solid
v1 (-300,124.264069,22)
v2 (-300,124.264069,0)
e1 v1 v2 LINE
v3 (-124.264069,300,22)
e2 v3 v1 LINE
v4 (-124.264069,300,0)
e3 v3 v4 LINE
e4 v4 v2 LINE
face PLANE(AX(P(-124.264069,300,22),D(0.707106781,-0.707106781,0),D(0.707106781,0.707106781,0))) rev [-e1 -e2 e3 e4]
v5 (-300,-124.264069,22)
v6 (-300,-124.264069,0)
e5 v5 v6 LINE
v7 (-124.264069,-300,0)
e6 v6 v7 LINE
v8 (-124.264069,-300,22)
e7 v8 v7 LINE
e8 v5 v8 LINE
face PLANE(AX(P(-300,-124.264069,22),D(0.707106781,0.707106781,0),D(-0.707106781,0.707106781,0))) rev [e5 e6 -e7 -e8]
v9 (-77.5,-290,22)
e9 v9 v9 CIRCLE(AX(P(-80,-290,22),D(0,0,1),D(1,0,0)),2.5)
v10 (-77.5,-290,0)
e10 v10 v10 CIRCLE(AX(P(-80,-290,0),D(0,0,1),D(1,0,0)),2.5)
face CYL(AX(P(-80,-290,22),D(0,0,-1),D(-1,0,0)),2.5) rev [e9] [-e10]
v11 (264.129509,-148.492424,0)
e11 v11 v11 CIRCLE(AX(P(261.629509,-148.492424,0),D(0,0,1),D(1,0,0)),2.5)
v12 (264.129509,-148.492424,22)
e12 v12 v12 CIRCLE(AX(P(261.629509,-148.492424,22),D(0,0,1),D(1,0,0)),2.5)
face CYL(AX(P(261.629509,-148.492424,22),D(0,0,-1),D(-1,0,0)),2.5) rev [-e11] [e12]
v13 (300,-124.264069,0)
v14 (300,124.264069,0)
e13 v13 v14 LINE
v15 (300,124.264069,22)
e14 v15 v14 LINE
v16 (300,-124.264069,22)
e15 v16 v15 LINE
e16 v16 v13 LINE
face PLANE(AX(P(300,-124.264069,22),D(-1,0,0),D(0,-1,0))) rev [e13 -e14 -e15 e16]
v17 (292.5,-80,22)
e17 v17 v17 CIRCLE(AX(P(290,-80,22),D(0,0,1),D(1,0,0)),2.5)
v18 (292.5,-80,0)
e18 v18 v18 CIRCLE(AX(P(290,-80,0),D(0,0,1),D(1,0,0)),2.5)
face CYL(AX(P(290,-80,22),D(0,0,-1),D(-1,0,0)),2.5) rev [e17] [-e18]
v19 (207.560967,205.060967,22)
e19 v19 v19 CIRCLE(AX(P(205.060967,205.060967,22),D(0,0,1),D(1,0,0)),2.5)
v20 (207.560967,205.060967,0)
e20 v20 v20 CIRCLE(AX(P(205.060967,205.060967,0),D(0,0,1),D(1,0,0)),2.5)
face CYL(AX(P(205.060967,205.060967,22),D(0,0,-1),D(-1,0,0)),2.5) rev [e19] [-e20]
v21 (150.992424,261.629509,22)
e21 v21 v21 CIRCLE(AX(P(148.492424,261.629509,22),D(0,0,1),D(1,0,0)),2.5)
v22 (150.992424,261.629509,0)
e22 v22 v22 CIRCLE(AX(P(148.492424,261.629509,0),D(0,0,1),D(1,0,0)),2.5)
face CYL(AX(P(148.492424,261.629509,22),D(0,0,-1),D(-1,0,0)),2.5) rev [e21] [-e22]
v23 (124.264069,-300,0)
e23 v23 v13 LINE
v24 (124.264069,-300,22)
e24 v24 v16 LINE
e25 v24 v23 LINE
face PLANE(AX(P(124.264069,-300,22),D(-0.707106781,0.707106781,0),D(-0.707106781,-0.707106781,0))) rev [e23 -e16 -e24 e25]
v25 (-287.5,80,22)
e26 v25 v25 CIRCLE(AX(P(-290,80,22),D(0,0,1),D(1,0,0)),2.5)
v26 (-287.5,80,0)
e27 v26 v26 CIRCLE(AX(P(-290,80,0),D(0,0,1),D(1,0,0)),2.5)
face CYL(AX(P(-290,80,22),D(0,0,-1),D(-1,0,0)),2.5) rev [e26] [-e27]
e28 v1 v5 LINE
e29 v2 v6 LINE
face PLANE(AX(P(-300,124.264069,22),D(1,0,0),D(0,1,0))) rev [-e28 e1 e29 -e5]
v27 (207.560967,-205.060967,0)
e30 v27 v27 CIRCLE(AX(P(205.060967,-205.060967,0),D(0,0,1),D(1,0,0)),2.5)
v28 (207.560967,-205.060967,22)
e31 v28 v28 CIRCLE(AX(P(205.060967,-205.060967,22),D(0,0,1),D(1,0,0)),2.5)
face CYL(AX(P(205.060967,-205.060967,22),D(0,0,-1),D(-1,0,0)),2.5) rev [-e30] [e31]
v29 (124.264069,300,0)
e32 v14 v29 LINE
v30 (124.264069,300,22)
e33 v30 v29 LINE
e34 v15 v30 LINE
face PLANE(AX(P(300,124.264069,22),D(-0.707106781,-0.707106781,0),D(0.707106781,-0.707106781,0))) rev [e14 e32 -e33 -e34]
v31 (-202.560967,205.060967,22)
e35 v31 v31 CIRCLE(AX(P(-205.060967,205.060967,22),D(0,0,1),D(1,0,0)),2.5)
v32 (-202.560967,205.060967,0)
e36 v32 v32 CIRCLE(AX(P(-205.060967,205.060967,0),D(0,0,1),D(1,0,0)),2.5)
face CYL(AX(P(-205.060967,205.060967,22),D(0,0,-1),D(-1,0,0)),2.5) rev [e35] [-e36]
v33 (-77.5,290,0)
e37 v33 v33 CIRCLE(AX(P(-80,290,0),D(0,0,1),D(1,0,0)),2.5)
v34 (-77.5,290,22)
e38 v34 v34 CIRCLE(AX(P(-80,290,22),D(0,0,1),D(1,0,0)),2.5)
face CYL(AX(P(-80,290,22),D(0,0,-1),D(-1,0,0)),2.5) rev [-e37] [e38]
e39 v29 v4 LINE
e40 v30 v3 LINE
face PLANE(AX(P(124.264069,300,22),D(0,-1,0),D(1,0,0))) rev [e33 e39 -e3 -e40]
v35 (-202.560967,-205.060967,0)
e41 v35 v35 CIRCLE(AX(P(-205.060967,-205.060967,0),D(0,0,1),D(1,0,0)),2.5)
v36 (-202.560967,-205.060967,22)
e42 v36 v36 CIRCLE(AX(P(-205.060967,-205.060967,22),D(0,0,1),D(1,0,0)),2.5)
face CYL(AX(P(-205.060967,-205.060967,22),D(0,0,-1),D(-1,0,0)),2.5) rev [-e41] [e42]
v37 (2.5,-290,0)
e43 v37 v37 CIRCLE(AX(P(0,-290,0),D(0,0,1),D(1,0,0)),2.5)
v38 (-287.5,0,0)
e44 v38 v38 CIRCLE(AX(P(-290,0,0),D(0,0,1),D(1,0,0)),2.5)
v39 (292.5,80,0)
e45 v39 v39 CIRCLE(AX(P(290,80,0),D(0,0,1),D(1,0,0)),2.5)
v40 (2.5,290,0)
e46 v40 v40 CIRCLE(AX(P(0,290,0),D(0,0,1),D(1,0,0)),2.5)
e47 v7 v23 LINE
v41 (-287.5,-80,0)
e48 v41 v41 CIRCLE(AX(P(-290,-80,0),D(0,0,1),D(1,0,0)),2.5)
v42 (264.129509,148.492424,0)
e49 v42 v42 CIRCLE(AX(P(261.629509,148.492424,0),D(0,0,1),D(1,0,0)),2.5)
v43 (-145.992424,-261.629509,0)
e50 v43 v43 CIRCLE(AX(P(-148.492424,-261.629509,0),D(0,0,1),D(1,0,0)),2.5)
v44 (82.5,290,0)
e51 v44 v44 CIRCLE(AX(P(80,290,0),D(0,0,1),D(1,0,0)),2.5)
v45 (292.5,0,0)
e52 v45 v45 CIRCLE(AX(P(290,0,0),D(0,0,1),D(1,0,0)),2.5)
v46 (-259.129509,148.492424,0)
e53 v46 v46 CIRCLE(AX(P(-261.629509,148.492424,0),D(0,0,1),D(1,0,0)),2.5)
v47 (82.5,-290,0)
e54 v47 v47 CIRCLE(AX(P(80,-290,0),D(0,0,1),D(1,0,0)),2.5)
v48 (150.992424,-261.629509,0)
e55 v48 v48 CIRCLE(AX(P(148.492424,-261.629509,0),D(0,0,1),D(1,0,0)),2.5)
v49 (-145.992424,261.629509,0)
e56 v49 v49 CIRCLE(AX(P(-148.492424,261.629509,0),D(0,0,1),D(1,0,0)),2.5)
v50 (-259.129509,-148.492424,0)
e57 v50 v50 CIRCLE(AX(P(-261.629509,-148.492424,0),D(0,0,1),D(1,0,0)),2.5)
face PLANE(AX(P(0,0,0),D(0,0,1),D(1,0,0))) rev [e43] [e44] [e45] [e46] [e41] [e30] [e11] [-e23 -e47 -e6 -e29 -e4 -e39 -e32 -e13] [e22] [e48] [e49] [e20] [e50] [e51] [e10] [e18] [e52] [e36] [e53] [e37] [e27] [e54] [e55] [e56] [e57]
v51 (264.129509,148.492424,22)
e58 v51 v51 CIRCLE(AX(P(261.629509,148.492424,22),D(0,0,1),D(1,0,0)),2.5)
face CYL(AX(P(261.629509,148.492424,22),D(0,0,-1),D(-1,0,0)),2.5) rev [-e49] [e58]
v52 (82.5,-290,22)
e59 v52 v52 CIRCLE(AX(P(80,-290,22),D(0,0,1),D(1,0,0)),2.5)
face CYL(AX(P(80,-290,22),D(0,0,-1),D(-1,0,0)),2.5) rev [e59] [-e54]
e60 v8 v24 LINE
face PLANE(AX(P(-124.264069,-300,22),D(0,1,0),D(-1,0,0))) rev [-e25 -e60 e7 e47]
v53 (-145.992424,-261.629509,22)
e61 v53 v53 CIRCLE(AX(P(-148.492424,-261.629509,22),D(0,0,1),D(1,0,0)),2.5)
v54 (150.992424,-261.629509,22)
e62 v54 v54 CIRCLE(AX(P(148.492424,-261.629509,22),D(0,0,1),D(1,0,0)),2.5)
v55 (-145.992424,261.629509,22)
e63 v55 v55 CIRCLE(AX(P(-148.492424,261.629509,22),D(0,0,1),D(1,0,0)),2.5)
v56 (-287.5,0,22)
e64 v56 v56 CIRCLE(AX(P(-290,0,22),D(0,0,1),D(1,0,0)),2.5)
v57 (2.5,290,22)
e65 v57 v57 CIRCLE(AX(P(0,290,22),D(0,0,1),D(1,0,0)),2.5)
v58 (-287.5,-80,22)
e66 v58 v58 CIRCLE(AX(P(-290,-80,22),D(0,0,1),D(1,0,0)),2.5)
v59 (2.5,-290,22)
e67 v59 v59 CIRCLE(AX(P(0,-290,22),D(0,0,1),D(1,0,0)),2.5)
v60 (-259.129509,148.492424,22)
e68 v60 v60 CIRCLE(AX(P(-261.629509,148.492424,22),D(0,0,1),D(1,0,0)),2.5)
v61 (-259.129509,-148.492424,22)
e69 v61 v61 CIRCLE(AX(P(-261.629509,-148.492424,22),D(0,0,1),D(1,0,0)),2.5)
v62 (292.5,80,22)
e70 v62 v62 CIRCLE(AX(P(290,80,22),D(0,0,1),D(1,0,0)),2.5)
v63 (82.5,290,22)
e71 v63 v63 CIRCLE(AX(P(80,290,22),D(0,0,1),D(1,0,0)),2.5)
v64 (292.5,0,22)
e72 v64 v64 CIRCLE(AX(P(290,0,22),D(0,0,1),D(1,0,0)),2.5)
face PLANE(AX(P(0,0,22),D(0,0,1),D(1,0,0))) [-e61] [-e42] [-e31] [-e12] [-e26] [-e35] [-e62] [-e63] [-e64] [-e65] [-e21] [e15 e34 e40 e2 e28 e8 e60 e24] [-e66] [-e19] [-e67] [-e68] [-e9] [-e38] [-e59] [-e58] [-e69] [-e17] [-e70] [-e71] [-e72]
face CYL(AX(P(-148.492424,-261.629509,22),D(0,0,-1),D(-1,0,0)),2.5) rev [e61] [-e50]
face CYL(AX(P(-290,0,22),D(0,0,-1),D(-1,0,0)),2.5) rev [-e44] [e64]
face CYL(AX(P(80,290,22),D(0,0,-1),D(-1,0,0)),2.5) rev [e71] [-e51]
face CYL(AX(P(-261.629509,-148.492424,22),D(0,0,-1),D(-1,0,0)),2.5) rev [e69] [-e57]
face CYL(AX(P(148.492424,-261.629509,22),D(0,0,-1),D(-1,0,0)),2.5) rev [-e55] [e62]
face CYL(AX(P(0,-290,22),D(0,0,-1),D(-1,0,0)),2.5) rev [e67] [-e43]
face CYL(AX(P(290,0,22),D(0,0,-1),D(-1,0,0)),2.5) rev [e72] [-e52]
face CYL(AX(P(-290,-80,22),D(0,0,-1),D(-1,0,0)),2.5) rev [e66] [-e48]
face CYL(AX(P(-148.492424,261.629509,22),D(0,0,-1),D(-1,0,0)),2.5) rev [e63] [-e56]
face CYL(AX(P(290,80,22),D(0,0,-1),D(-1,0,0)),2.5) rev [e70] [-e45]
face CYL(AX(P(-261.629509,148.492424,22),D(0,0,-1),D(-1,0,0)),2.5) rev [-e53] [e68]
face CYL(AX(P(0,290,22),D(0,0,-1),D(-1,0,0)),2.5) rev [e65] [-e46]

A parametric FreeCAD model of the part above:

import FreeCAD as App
import Part
import Sketcher
from FreeCAD import Vector
Q = App.Units.Quantity

doc = App.newDocument("Part")
body = doc.addObject("PartDesign::Body", "Body")

# Sketch on XY plane
sketch1 = body.newObject("Sketcher::SketchObject", "Sketch")
sketch1.AttachmentSupport = (doc.getObject("XY_Plane"), [""])
sketch1.MapMode = "FlatFace"
sketch1.addGeometry(Part.LineSegment(Vector(124.3, 300, 0), Vector(-124.3, 300, 0)), False)
sketch1.addGeometry(Part.LineSegment(Vector(-124.3, 300, 0), Vector(-300, 124.3, 0)), False)
sketch1.addGeometry(Part.LineSegment(Vector(-300, 124.3, 0), Vector(-300, -124.3, 0)), False)
sketch1.addGeometry(Part.LineSegment(Vector(-300, -124.3, 0), Vector(-124.3, -300, 0)), False)
sketch1.addGeometry(Part.LineSegment(Vector(-124.3, -300, 0), Vector(124.3, -300, 0)), False)
sketch1.addGeometry(Part.LineSegment(Vector(124.3, -300, 0), Vector(300, -124.3, 0)), False)
sketch1.addGeometry(Part.LineSegment(Vector(300, -124.3, 0), Vector(300, 124.3, 0)), False)
sketch1.addGeometry(Part.LineSegment(Vector(300, 124.3, 0), Vector(124.3, 300, 0)), False)
sketch1.addGeometry(Part.Circle(Vector(-148.5, -261.6, 0), Vector(0, 0, 1), 2.5), False)
sketch1.addGeometry(Part.Circle(Vector(-261.6, -148.5, 0), Vector(0, 0, 1), 2.5), False)
sketch1.addGeometry(Part.Circle(Vector(-205.1, -205.1, 0), Vector(0, 0, 1), 2.5), False)
sketch1.addGeometry(Part.Circle(Vector(-80, -290, 0), Vector(0, 0, 1), 2.5), False)
sketch1.addGeometry(Part.Circle(Vector(-290, -80, 0), Vector(0, 0, 1), 2.5), False)
sketch1.addGeometry(Part.Circle(Vector(0, -290, 0), Vector(0, 0, 1), 2.5), False)
sketch1.addGeometry(Part.Circle(Vector(80, -290, 0), Vector(0, 0, 1), 2.5), False)
sketch1.addGeometry(Part.Circle(Vector(148.5, -261.6, 0), Vector(0, 0, 1), 2.5), False)
sketch1.addGeometry(Part.Circle(Vector(205.1, -205.1, 0), Vector(0, 0, 1), 2.5), False)
sketch1.addGeometry(Part.Circle(Vector(261.6, -148.5, 0), Vector(0, 0, 1), 2.5), False)
sketch1.addGeometry(Part.Circle(Vector(290, -80, 0), Vector(0, 0, 1), 2.5), False)
sketch1.addGeometry(Part.Circle(Vector(-290, 0, 0), Vector(0, 0, 1), 2.5), False)
sketch1.addGeometry(Part.Circle(Vector(-290, 80, 0), Vector(0, 0, 1), 2.5), False)
sketch1.addGeometry(Part.Circle(Vector(-261.6, 148.5, 0), Vector(0, 0, 1), 2.5), False)
sketch1.addGeometry(Part.Circle(Vector(-205.1, 205.1, 0), Vector(0, 0, 1), 2.5), False)
sketch1.addGeometry(Part.Circle(Vector(-148.5, 261.6, 0), Vector(0, 0, 1), 2.5), False)
sketch1.addGeometry(Part.Circle(Vector(-80, 290, 0), Vector(0, 0, 1), 2.5), False)
sketch1.addGeometry(Part.Circle(Vector(290, 0, 0), Vector(0, 0, 1), 2.5), False)
sketch1.addGeometry(Part.Circle(Vector(290, 80, 0), Vector(0, 0, 1), 2.5), False)
sketch1.addGeometry(Part.Circle(Vector(0, 290, 0), Vector(0, 0, 1), 2.5), False)
sketch1.addGeometry(Part.Circle(Vector(80, 290, 0), Vector(0, 0, 1), 2.5), False)
sketch1.addGeometry(Part.Circle(Vector(205.1, 205.1, 0), Vector(0, 0, 1), 2.5), False)
sketch1.addGeometry(Part.Circle(Vector(261.6, 148.5, 0), Vector(0, 0, 1), 2.5), False)
sketch1.addGeometry(Part.Circle(Vector(148.5, 261.6, 0), Vector(0, 0, 1), 2.5), False)
sketch1.addConstraint(Sketcher.Constraint("Coincident", 0, 2, 1, 1))
sketch1.addConstraint(Sketcher.Constraint("Coincident", 1, 2, 2, 1))
sketch1.addConstraint(Sketcher.Constraint("Coincident", 2, 2, 3, 1))
sketch1.addConstraint(Sketcher.Constraint("Coincident", 3, 2, 4, 1))
sketch1.addConstraint(Sketcher.Constraint("Coincident", 4, 2, 5, 1))
sketch1.addConstraint(Sketcher.Constraint("Coincident", 5, 2, 6, 1))
sketch1.addConstraint(Sketcher.Constraint("Coincident", 6, 2, 7, 1))
sketch1.addConstraint(Sketcher.Constraint("Coincident", 7, 2, 0, 1))
sketch1.addConstraint(Sketcher.Constraint("Horizontal", 0))
sketch1.addConstraint(Sketcher.Constraint("Vertical", 2))
sketch1.addConstraint(Sketcher.Constraint("Horizontal", 4))
sketch1.addConstraint(Sketcher.Constraint("Vertical", 6))
sketch1.addConstraint(Sketcher.Constraint("Equal", 8, 9))
sketch1.addConstraint(Sketcher.Constraint("Equal", 9, 10))
sketch1.addConstraint(Sketcher.Constraint("Equal", 10, 11))
sketch1.addConstraint(Sketcher.Constraint("Equal", 11, 12))
sketch1.addConstraint(Sketcher.Constraint("Equal", 12, 13))
sketch1.addConstraint(Sketcher.Constraint("Equal", 13, 14))
sketch1.addConstraint(Sketcher.Constraint("Equal", 14, 15))
sketch1.addConstraint(Sketcher.Constraint("Equal", 15, 16))
sketch1.addConstraint(Sketcher.Constraint("Equal", 16, 17))
sketch1.addConstraint(Sketcher.Constraint("Equal", 17, 18))
sketch1.addConstraint(Sketcher.Constraint("Equal", 18, 19))
sketch1.addConstraint(Sketcher.Constraint("Equal", 19, 20))
sketch1.addConstraint(Sketcher.Constraint("Equal", 20, 21))
sketch1.addConstraint(Sketcher.Constraint("Equal", 21, 22))
sketch1.addConstraint(Sketcher.Constraint("Equal", 22, 23))
sketch1.addConstraint(Sketcher.Constraint("Equal", 23, 24))
sketch1.addConstraint(Sketcher.Constraint("Equal", 24, 25))
sketch1.addConstraint(Sketcher.Constraint("Equal", 25, 26))
sketch1.addConstraint(Sketcher.Constraint("Equal", 26, 27))
sketch1.addConstraint(Sketcher.Constraint("Equal", 27, 28))
sketch1.addConstraint(Sketcher.Constraint("Equal", 28, 29))
sketch1.addConstraint(Sketcher.Constraint("Equal", 29, 30))
sketch1.addConstraint(Sketcher.Constraint("Equal", 30, 31))
sketch1.addConstraint(Sketcher.Constraint("Symmetric", 18, 3, 20, 3, -1, 1))
sketch1.addConstraint(Sketcher.Constraint("Symmetric", 17, 3, 21, 3, -1, 1))
sketch1.addConstraint(Sketcher.Constraint("Symmetric", 16, 3, 22, 3, -1, 1))
sketch1.addConstraint(Sketcher.Constraint("Symmetric", 15, 3, 23, 3, -1, 1))
sketch1.addConstraint(Sketcher.Constraint("Symmetric", 14, 3, 24, 3, -1, 1))
sketch1.addConstraint(Sketcher.Constraint("Symmetric", 19, 3, 25, 3, -1, 1))
sketch1.addConstraint(Sketcher.Constraint("Symmetric", 12, 3, 26, 3, -1, 1))
sketch1.addConstraint(Sketcher.Constraint("Symmetric", 13, 3, 27, 3, -1, 1))
sketch1.addConstraint(Sketcher.Constraint("Symmetric", 11, 3, 28, 3, -1, 1))
sketch1.addConstraint(Sketcher.Constraint("Symmetric", 10, 3, 29, 3, -1, 1))
sketch1.addConstraint(Sketcher.Constraint("Symmetric", 9, 3, 30, 3, -1, 1))
sketch1.addConstraint(Sketcher.Constraint("Symmetric", 8, 3, 31, 3, -1, 1))
sketch1.addConstraint(Sketcher.Constraint("Symmetric", 0, 2, 4, 2, -1, 1))
sketch1.addConstraint(Sketcher.Constraint("Symmetric", 1, 2, 5, 2, -1, 1))
sketch1.addConstraint(Sketcher.Constraint("Symmetric", 11, 3, 14, 3, -2))
sketch1.addConstraint(Sketcher.Constraint("Symmetric", 8, 3, 15, 3, -2))
sketch1.addConstraint(Sketcher.Constraint("Symmetric", 10, 3, 16, 3, -2))
sketch1.addConstraint(Sketcher.Constraint("Symmetric", 9, 3, 17, 3, -2))
sketch1.addConstraint(Sketcher.Constraint("Symmetric", 12, 3, 18, 3, -2))
sketch1.addConstraint(Sketcher.Constraint("PointOnObject", 13, 3, -2))
sketch1.addConstraint(Sketcher.Constraint("PointOnObject", 19, 3, -1))
sketch1.addConstraint(Sketcher.Constraint("Perpendicular", 1, 3))
sketch1.addConstraint(Sketcher.Constraint("Perpendicular", 5, 7))
sketch1.addConstraint(Sketcher.Constraint("Horizontal", 11, 3, 13, 3))
sketch1.addConstraint(Sketcher.Constraint("Horizontal", 2, 2, 5, 2))
sketch1.addConstraint(Sketcher.Constraint("Horizontal", 1, 2, 6, 2))
sketch1.addConstraint(Sketcher.Constraint("Vertical", 12, 3, 19, 3))
sketch1.addConstraint(Sketcher.Constraint("Vertical", 0, 2, 3, 2))
sketch1.addConstraint(Sketcher.Constraint("Equal", 4, 2))
sketch1.addConstraint(Sketcher.Constraint("Diameter", 8, Q("5 mm")))
sketch1.addConstraint(Sketcher.Constraint("DistanceX", 11, 3, -1, 1, Q("80 mm")))
sketch1.addConstraint(Sketcher.Constraint("DistanceY", 11, 3, -1, 1, Q("290 mm")))
sketch1.addConstraint(Sketcher.Constraint("DistanceX", 12, 3, -1, 1, Q("290 mm")))
sketch1.addConstraint(Sketcher.Constraint("DistanceY", 12, 3, -1, 1, Q("80 mm")))
sketch1.addConstraint(Sketcher.Constraint("DistanceY", -1, 1, 0, 2, Q("300 mm")))
sketch1.addConstraint(Sketcher.Constraint("DistanceX", 0, 2, 0, 1, Q("248.528137 mm")))
sketch1.addConstraint(Sketcher.Constraint("DistanceY", 8, 3, -1, 1, Q("261.629509 mm")))
sketch1.addConstraint(Sketcher.Constraint("DistanceX", 9, 3, -1, 1, Q("261.629509 mm")))
sketch1.addConstraint(Sketcher.Constraint("DistanceX", 8, 3, 15, 3, Q("296.984848 mm")))
sketch1.addConstraint(Sketcher.Constraint("DistanceX", 10, 3, 15, 3, Q("353.553391 mm")))
sketch1.addConstraint(Sketcher.Constraint("DistanceY", 9, 3, 21, 3, Q("296.984848 mm")))
sketch1.addConstraint(Sketcher.Constraint("DistanceY", 10, 3, 21, 3, Q("353.553391 mm")))
pad1 = body.newObject("PartDesign::Pad", "Pad")
pad1.Profile = sketch1
pad1.Length = 22

doc.recompute()
